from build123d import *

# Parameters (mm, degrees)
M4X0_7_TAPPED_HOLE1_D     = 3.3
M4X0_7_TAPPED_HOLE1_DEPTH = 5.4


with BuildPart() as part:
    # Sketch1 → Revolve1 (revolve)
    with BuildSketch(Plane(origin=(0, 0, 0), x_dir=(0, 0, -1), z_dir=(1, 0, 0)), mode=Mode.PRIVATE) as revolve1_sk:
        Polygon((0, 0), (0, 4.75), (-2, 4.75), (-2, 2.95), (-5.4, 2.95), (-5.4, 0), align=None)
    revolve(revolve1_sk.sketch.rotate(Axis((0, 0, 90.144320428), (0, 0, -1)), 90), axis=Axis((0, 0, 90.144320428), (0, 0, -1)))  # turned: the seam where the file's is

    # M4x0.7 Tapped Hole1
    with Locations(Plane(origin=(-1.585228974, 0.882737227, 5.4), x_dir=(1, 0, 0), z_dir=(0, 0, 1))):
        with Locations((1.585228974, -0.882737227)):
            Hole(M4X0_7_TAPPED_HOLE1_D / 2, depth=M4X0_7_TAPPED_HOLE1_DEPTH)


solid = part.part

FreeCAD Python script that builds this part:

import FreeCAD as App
import Part
import Sketcher


def add_polygon(sketch, points):
    """Adds a closed chain of lines whose ends are joined by coincident constraints."""
    first, n = sketch.GeometryCount, len(points)
    for a, b in zip(points, points[1:] + points[:1]):
        sketch.addGeometry(Part.LineSegment(App.Vector(*a, 0), App.Vector(*b, 0)), False)
    for i in range(n):
        sketch.addConstraint(Sketcher.Constraint("Coincident", first + i, 2, first + (i + 1) % n, 1))

doc = App.newDocument("Part")
body = doc.addObject("PartDesign::Body", "Body")

# Sketch on YZ plane
sketch1 = body.newObject("Sketcher::SketchObject", "Sketch")
sketch1.AttachmentSupport = (doc.getObject("YZ_Plane"), [""])
sketch1.MapMode = "FlatFace"
add_polygon(sketch1, [(0, 0), (4.8, 0), (4.8, 2), (3, 2), (3, 5.4), (0, 5.4)])  # lines 0-5
sketch1.addConstraint(Sketcher.Constraint("Horizontal", 0))
sketch1.addConstraint(Sketcher.Constraint("Vertical", 1))
sketch1.addConstraint(Sketcher.Constraint("Horizontal", 2))
sketch1.addConstraint(Sketcher.Constraint("Vertical", 3))
sketch1.addConstraint(Sketcher.Constraint("Horizontal", 4))
sketch1.addConstraint(Sketcher.Constraint("Vertical", 5))
sketch1.addConstraint(Sketcher.Constraint("Coincident", 5, 2, -1, 1))
sketch1.addConstraint(Sketcher.Constraint("DistanceY", 1, 1, 1, 2, 2.0))
sketch1.addConstraint(Sketcher.Constraint("DistanceX", 2, 2, 2, 1, 1.8))
sketch1.addConstraint(Sketcher.Constraint("DistanceY", 3, 1, 3, 2, 3.4))
sketch1.addConstraint(Sketcher.Constraint("DistanceX", 0, 1, 0, 2, 4.75))
revolution = body.newObject("PartDesign::Revolution", "Revolution")
revolution.Profile = sketch1
revolution.ReferenceAxis = (sketch1, ["V_Axis"])
revolution.Angle = 360

# Sketch on XY plane
sketch2 = body.newObject("Sketcher::SketchObject", "Sketch001")
sketch2.AttachmentSupport = (doc.getObject("XY_Plane"), [""])
sketch2.MapMode = "FlatFace"
sketch2.AttachmentOffset = App.Placement(App.Vector(0, 0, 5.4), App.Rotation())
sketch2.addGeometry(Part.Circle(App.Vector(0, 0, 0), App.Vector(0, 0, 1), 1.6), False)
sketch2.addConstraint(Sketcher.Constraint("Coincident", 0, 3, -1, 1))
sketch2.addConstraint(Sketcher.Constraint("Diameter", 0, 3.3))
doc.recompute()
hole = body.newObject("PartDesign::Hole", "Hole")
hole.Profile = sketch2
hole.ThreadType = "None"
hole.Diameter = 3.3
hole.DepthType = "Dimension"
hole.Depth = 5.4
hole.DrillPoint = "Flat"

doc.recompute()
